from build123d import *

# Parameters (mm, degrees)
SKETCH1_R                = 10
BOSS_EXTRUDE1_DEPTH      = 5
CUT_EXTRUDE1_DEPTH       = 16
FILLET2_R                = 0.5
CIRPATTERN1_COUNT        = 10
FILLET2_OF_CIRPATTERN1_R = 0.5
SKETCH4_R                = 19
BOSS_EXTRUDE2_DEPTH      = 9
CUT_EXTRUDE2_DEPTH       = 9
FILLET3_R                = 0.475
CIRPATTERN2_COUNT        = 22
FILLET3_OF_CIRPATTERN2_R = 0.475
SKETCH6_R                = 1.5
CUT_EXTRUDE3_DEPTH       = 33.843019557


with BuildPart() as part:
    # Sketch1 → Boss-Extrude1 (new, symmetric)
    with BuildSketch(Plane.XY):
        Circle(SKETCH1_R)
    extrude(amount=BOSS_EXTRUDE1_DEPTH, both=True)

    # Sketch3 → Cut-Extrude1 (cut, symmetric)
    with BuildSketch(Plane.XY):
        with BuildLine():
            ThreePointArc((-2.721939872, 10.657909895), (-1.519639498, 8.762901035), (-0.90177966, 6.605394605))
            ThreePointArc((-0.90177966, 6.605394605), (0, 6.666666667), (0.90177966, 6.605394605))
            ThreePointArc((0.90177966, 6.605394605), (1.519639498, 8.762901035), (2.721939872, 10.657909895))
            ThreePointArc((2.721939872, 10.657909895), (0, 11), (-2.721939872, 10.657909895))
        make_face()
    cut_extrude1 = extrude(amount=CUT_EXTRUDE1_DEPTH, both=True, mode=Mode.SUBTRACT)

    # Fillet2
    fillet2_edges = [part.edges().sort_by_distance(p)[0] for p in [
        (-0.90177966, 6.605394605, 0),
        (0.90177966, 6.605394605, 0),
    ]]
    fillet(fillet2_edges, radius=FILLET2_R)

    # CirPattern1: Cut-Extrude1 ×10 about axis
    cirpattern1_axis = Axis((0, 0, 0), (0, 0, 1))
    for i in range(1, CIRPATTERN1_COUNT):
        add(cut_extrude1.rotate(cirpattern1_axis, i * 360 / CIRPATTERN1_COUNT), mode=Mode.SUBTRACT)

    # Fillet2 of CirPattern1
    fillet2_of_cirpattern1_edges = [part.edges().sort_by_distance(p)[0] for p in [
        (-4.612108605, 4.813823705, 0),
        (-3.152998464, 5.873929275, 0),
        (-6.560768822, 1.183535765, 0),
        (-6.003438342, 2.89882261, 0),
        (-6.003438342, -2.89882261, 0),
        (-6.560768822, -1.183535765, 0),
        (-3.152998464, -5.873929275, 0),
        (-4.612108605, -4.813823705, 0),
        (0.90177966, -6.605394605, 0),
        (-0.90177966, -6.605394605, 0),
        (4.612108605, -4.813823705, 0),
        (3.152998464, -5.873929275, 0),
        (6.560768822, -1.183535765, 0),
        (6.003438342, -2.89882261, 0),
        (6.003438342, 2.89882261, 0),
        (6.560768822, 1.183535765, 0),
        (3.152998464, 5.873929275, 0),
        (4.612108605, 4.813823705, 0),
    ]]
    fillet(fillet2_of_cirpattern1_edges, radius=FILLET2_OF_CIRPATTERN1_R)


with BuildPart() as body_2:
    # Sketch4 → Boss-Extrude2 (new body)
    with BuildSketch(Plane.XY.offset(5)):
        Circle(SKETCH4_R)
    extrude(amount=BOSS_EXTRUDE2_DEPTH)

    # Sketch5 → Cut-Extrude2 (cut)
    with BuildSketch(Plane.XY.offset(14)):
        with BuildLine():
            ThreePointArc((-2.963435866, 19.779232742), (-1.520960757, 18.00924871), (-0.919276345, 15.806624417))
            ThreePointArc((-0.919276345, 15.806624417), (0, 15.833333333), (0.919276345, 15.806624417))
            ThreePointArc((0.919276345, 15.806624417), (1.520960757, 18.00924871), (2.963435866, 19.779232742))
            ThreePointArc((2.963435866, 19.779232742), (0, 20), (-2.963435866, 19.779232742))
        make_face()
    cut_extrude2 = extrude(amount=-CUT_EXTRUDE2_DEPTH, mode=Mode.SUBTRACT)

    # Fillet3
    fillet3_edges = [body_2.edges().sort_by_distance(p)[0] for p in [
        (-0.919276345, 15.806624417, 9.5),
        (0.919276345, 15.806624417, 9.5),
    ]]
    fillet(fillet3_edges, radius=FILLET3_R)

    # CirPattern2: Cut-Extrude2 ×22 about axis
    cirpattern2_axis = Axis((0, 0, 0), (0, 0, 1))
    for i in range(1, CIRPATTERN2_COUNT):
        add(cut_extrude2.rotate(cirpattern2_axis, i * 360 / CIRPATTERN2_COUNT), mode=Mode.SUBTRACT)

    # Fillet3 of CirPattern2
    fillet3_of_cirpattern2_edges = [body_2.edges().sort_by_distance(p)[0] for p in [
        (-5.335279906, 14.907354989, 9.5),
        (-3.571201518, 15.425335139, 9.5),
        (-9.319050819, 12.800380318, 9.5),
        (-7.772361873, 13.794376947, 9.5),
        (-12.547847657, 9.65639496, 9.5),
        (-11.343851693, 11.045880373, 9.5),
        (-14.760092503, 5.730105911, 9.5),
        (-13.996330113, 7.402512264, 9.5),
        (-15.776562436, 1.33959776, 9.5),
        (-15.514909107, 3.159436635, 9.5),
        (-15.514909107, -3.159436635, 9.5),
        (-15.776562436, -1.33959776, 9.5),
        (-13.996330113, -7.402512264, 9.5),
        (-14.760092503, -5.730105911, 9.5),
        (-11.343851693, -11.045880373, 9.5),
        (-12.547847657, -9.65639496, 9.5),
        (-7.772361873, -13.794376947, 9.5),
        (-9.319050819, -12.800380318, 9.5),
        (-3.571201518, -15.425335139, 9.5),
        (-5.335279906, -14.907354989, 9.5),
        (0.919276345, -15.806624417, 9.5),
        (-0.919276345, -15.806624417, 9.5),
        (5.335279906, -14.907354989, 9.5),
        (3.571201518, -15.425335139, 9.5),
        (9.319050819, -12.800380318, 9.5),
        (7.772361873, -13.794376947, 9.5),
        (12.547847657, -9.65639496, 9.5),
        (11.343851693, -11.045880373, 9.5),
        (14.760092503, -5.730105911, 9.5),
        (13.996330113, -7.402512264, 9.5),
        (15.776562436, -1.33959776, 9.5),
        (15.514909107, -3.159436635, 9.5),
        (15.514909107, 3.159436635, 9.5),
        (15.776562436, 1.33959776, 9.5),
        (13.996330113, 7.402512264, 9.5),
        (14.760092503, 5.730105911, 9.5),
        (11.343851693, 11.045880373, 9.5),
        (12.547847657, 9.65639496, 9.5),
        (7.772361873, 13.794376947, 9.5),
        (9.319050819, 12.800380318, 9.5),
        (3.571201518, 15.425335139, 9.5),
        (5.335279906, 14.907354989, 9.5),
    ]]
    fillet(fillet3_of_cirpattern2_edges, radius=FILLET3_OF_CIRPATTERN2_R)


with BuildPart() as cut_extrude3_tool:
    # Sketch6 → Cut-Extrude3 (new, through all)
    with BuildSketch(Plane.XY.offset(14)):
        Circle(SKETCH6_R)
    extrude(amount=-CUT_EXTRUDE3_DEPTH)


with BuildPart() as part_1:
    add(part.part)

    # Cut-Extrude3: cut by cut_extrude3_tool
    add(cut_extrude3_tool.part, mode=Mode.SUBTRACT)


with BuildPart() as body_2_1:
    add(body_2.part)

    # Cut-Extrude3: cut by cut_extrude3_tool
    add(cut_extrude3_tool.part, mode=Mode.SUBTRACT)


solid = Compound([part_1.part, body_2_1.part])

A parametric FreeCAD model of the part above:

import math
import FreeCAD as App
import Part
import Sketcher

V = App.Vector
Q = App.Units.Quantity


def edges_at(feature, points):
    """Names of the edges that pass closest to the given points."""
    edges = feature.Shape.Edges
    near = lambda p: min(range(len(edges)), key=lambda i: edges[i].distToShape(Part.Vertex(*p))[0])
    return sorted({f"Edge{near(p) + 1}" for p in points})

doc = App.newDocument("Part")
body = doc.addObject("PartDesign::Body", "Body")

# Sketch on XY plane
sketch1 = doc.addObject("Sketcher::SketchObject", "Sketch")
body.addObject(sketch1)
sketch1.AttachmentSupport = (doc.XY_Plane, [""])
sketch1.MapMode = "FlatFace"
sketch1.addGeometry(Part.Circle(V(0, 0, 0), V(0, 0, 1), 10), False)
sketch1.addConstraint([
    Sketcher.Constraint("Coincident", 0, 3, -1, 1),
    Sketcher.Constraint("Diameter", 0, Q("20 mm")),
])
pad1 = doc.addObject("PartDesign::Pad", "Pad")
body.addObject(pad1)
pad1.Profile = sketch1
pad1.Length = 10
pad1.Midplane = True

# Sketch on XY plane
sketch2 = doc.addObject("Sketcher::SketchObject", "Sketch001")
body.addObject(sketch2)
sketch2.AttachmentSupport = (doc.XY_Plane, [""])
sketch2.MapMode = "FlatFace"
sketch2.addGeometry([
    Part.ArcOfCircle(Part.Circle(V(-8.7, 5.5, 0), V(0, 0, 1), 7.9), math.radians(8), math.radians(41)),
    Part.ArcOfCircle(Part.Circle(V(0, 0, 0), V(0, 0, 1), 6.7), math.radians(82.23), math.radians(97.77)),
    Part.ArcOfCircle(Part.Circle(V(8.7, 5.5, 0), V(0, 0, 1), 7.9), math.radians(139), math.radians(172)),
    Part.ArcOfCircle(Part.Circle(V(0, 0, 0), V(0, 0, 1), 11), math.radians(76), math.radians(104)),
], False)
sketch2.addConstraint([
    Sketcher.Constraint("Coincident", 0, 1, 1, 2),
    Sketcher.Constraint("Coincident", 1, 1, 2, 2),
    Sketcher.Constraint("Coincident", 2, 1, 3, 1),
    Sketcher.Constraint("Coincident", 3, 2, 0, 2),
    Sketcher.Constraint("Coincident", 1, 3, -1, 1),
    Sketcher.Constraint("Coincident", 3, 3, -1, 1),
    Sketcher.Constraint("Equal", 0, 2),
    Sketcher.Constraint("Symmetric", 0, 3, 2, 3, -2),
    Sketcher.Constraint("Radius", 3, Q("11 mm")),
    Sketcher.Constraint("Radius", 0, Q("7.861265 mm")),
    Sketcher.Constraint("Radius", 1, Q("6.666667 mm")),
    Sketcher.Constraint("DistanceX", 0, 1, -1, 1, Q("0.90178 mm")),
    Sketcher.Constraint("DistanceX", -1, 1, 2, 1, Q("2.72194 mm")),
])
pocket1 = doc.addObject("PartDesign::Pocket", "Pocket")
body.addObject(pocket1)
pocket1.Profile = sketch2
pocket1.Length = 32
pocket1.Midplane = True
doc.recompute()

fillet = doc.addObject("PartDesign::Fillet", "Fillet")
body.addObject(fillet)
fillet.Base = (pocket1, edges_at(pocket1, [(-0.902, 6.605, 0), (0.902, 6.605, 0)]))
fillet.Radius = 0.5
doc.recompute()

polarpattern = doc.addObject("PartDesign::PolarPattern", "PolarPattern")
body.addObject(polarpattern)
polarpattern.Originals = [pocket1]
polarpattern.Axis = (doc.Z_Axis, [""])
polarpattern.Angle = 360
polarpattern.Occurrences = 10
body.Tip = polarpattern
doc.recompute()

fillet2 = doc.addObject("PartDesign::Fillet", "Fillet001")
body.addObject(fillet2)
fillet2.Base = (polarpattern, edges_at(polarpattern, [
    (-4.612, 4.814, 0),
    (-3.153, 5.874, 0),
    (-6.561, 1.184, 0),
    (-6.003, 2.899, 0),
    (-6.003, -2.899, 0),
    (-6.561, -1.184, 0),
    (-3.153, -5.874, 0),
    (-4.612, -4.814, 0),
    (0.902, -6.605, 0),
    (-0.902, -6.605, 0),
    (4.612, -4.814, 0),
    (3.153, -5.874, 0),
    (6.561, -1.184, 0),
    (6.003, -2.899, 0),
    (6.003, 2.899, 0),
    (6.561, 1.184, 0),
    (3.153, 5.874, 0),
    (4.612, 4.814, 0),
]))
fillet2.Radius = 0.5
body2 = doc.addObject("PartDesign::Body", "Body001")

# Sketch on XY plane
sketch3 = doc.addObject("Sketcher::SketchObject", "Sketch002")
body2.addObject(sketch3)
sketch3.AttachmentSupport = (doc.getObject("XY_Plane001"), [""])
sketch3.MapMode = "FlatFace"
sketch3.AttachmentOffset = App.Placement(V(0, 0, 5), App.Rotation())
sketch3.addGeometry(Part.Circle(V(0, 0, 0), V(0, 0, 1), 19), False)
sketch3.addConstraint([
    Sketcher.Constraint("Coincident", 0, 3, -1, 1),
    Sketcher.Constraint("Diameter", 0, Q("38 mm")),
])
pad2 = doc.addObject("PartDesign::Pad", "Pad001")
body2.addObject(pad2)
pad2.Profile = sketch3
pad2.Length = 9

# Sketch on XY plane
sketch4 = doc.addObject("Sketcher::SketchObject", "Sketch003")
body2.addObject(sketch4)
sketch4.AttachmentSupport = (doc.getObject("XY_Plane001"), [""])
sketch4.MapMode = "FlatFace"
sketch4.AttachmentOffset = App.Placement(V(0, 0, 14), App.Rotation())
sketch4.addGeometry([
    Part.ArcOfCircle(Part.Circle(V(-6.4, 15.5, 0), V(0, 0, 1), 5.5), math.radians(3), math.radians(51)),
    Part.ArcOfCircle(Part.Circle(V(0, 0, 0), V(0, 0, 1), 15.8), math.radians(86.67), math.radians(93.33)),
    Part.ArcOfCircle(Part.Circle(V(6.4, 15.5, 0), V(0, 0, 1), 5.5), math.radians(129), math.radians(177)),
    Part.ArcOfCircle(Part.Circle(V(0, 0, 0), V(0, 0, 1), 20), math.radians(81.48), math.radians(98.52)),
], False)
sketch4.addConstraint([
    Sketcher.Constraint("Coincident", 0, 1, 1, 2),
    Sketcher.Constraint("Coincident", 1, 1, 2, 2),
    Sketcher.Constraint("Coincident", 2, 1, 3, 1),
    Sketcher.Constraint("Coincident", 3, 2, 0, 2),
    Sketcher.Constraint("Coincident", 1, 3, -1, 1),
    Sketcher.Constraint("Coincident", 3, 3, -1, 1),
    Sketcher.Constraint("Equal", 0, 2),
    Sketcher.Constraint("Symmetric", 0, 3, 2, 3, -2),
    Sketcher.Constraint("Radius", 3, Q("20 mm")),
    Sketcher.Constraint("Radius", 0, Q("5.513676 mm")),
    Sketcher.Constraint("Radius", 1, Q("15.833334 mm")),
    Sketcher.Constraint("DistanceX", 0, 3, -1, 1, Q("6.423651 mm")),
    Sketcher.Constraint("DistanceY", 0, 3, 0, 1, Q("0.320122 mm")),
])
pocket2 = doc.addObject("PartDesign::Pocket", "Pocket001")
body2.addObject(pocket2)
pocket2.Profile = sketch4
pocket2.Length = 9
doc.recompute()

fillet3 = doc.addObject("PartDesign::Fillet", "Fillet002")
body2.addObject(fillet3)
fillet3.Base = (pocket2, edges_at(pocket2, [(-0.919, 15.807, 9.5), (0.919, 15.807, 9.5)]))
fillet3.Radius = 0.475
doc.recompute()

polarpattern2 = doc.addObject("PartDesign::PolarPattern", "PolarPattern001")
body2.addObject(polarpattern2)
polarpattern2.Originals = [pocket2]
polarpattern2.Axis = (doc.getObject("Z_Axis001"), [""])
polarpattern2.Angle = 360
polarpattern2.Occurrences = 22
body2.Tip = polarpattern2
doc.recompute()

fillet4 = doc.addObject("PartDesign::Fillet", "Fillet003")
body2.addObject(fillet4)
fillet4.Base = (polarpattern2, edges_at(polarpattern2, [
    (-5.335, 14.907, 9.5),
    (-3.571, 15.425, 9.5),
    (-9.319, 12.8, 9.5),
    (-7.772, 13.794, 9.5),
    (-12.548, 9.656, 9.5),
    (-11.344, 11.046, 9.5),
    (-14.76, 5.73, 9.5),
    (-13.996, 7.403, 9.5),
    (-15.777, 1.34, 9.5),
    (-15.515, 3.159, 9.5),
    (-15.515, -3.159, 9.5),
    (-15.777, -1.34, 9.5),
    (-13.996, -7.403, 9.5),
    (-14.76, -5.73, 9.5),
    (-11.344, -11.046, 9.5),
    (-12.548, -9.656, 9.5),
    (-7.772, -13.794, 9.5),
    (-9.319, -12.8, 9.5),
    (-3.571, -15.425, 9.5),
    (-5.335, -14.907, 9.5),
    (0.919, -15.807, 9.5),
    (-0.919, -15.807, 9.5),
    (5.335, -14.907, 9.5),
    (3.571, -15.425, 9.5),
    (9.319, -12.8, 9.5),
    (7.772, -13.794, 9.5),
    (12.548, -9.656, 9.5),
    (11.344, -11.046, 9.5),
    (14.76, -5.73, 9.5),
    (13.996, -7.403, 9.5),
    (15.777, -1.34, 9.5),
    (15.515, -3.159, 9.5),
    (15.515, 3.159, 9.5),
    (15.777, 1.34, 9.5),
    (13.996, 7.403, 9.5),
    (14.76, 5.73, 9.5),
    (11.344, 11.046, 9.5),
    (12.548, 9.656, 9.5),
    (7.772, 13.794, 9.5),
    (9.319, 12.8, 9.5),
    (3.571, 15.425, 9.5),
    (5.335, 14.907, 9.5),
]))
fillet4.Radius = 0.475
body3 = doc.addObject("PartDesign::Body", "Body002")

# Sketch on XY plane
sketch5 = doc.addObject("Sketcher::SketchObject", "Sketch004")
body3.addObject(sketch5)
sketch5.AttachmentSupport = (doc.getObject("XY_Plane002"), [""])
sketch5.MapMode = "FlatFace"
sketch5.AttachmentOffset = App.Placement(V(0, 0, 14), App.Rotation())
sketch5.addGeometry(Part.Circle(V(0, 0, 0), V(0, 0, 1), 1.5), False)
sketch5.addConstraint([
    Sketcher.Constraint("Coincident", 0, 3, -1, 1),
    Sketcher.Constraint("Diameter", 0, Q("3 mm")),
])
pad3 = doc.addObject("PartDesign::Pad", "Pad002")
body3.addObject(pad3)
pad3.Profile = sketch5
pad3.Length = 33.84302
pad3.Reversed = True
doc.recompute()

body4 = doc.addObject("PartDesign::Body", "Body003")
body4.BaseFeature = body3
boolean = doc.addObject("PartDesign::Boolean", "Boolean")
body.addObject(boolean)
boolean.Type = "Cut"
boolean.addObjects([body4])
doc.recompute()

boolean2 = doc.addObject("PartDesign::Boolean", "Boolean001")
body2.addObject(boolean2)
boolean2.Type = "Cut"
boolean2.addObjects([body3])

doc.recompute()
